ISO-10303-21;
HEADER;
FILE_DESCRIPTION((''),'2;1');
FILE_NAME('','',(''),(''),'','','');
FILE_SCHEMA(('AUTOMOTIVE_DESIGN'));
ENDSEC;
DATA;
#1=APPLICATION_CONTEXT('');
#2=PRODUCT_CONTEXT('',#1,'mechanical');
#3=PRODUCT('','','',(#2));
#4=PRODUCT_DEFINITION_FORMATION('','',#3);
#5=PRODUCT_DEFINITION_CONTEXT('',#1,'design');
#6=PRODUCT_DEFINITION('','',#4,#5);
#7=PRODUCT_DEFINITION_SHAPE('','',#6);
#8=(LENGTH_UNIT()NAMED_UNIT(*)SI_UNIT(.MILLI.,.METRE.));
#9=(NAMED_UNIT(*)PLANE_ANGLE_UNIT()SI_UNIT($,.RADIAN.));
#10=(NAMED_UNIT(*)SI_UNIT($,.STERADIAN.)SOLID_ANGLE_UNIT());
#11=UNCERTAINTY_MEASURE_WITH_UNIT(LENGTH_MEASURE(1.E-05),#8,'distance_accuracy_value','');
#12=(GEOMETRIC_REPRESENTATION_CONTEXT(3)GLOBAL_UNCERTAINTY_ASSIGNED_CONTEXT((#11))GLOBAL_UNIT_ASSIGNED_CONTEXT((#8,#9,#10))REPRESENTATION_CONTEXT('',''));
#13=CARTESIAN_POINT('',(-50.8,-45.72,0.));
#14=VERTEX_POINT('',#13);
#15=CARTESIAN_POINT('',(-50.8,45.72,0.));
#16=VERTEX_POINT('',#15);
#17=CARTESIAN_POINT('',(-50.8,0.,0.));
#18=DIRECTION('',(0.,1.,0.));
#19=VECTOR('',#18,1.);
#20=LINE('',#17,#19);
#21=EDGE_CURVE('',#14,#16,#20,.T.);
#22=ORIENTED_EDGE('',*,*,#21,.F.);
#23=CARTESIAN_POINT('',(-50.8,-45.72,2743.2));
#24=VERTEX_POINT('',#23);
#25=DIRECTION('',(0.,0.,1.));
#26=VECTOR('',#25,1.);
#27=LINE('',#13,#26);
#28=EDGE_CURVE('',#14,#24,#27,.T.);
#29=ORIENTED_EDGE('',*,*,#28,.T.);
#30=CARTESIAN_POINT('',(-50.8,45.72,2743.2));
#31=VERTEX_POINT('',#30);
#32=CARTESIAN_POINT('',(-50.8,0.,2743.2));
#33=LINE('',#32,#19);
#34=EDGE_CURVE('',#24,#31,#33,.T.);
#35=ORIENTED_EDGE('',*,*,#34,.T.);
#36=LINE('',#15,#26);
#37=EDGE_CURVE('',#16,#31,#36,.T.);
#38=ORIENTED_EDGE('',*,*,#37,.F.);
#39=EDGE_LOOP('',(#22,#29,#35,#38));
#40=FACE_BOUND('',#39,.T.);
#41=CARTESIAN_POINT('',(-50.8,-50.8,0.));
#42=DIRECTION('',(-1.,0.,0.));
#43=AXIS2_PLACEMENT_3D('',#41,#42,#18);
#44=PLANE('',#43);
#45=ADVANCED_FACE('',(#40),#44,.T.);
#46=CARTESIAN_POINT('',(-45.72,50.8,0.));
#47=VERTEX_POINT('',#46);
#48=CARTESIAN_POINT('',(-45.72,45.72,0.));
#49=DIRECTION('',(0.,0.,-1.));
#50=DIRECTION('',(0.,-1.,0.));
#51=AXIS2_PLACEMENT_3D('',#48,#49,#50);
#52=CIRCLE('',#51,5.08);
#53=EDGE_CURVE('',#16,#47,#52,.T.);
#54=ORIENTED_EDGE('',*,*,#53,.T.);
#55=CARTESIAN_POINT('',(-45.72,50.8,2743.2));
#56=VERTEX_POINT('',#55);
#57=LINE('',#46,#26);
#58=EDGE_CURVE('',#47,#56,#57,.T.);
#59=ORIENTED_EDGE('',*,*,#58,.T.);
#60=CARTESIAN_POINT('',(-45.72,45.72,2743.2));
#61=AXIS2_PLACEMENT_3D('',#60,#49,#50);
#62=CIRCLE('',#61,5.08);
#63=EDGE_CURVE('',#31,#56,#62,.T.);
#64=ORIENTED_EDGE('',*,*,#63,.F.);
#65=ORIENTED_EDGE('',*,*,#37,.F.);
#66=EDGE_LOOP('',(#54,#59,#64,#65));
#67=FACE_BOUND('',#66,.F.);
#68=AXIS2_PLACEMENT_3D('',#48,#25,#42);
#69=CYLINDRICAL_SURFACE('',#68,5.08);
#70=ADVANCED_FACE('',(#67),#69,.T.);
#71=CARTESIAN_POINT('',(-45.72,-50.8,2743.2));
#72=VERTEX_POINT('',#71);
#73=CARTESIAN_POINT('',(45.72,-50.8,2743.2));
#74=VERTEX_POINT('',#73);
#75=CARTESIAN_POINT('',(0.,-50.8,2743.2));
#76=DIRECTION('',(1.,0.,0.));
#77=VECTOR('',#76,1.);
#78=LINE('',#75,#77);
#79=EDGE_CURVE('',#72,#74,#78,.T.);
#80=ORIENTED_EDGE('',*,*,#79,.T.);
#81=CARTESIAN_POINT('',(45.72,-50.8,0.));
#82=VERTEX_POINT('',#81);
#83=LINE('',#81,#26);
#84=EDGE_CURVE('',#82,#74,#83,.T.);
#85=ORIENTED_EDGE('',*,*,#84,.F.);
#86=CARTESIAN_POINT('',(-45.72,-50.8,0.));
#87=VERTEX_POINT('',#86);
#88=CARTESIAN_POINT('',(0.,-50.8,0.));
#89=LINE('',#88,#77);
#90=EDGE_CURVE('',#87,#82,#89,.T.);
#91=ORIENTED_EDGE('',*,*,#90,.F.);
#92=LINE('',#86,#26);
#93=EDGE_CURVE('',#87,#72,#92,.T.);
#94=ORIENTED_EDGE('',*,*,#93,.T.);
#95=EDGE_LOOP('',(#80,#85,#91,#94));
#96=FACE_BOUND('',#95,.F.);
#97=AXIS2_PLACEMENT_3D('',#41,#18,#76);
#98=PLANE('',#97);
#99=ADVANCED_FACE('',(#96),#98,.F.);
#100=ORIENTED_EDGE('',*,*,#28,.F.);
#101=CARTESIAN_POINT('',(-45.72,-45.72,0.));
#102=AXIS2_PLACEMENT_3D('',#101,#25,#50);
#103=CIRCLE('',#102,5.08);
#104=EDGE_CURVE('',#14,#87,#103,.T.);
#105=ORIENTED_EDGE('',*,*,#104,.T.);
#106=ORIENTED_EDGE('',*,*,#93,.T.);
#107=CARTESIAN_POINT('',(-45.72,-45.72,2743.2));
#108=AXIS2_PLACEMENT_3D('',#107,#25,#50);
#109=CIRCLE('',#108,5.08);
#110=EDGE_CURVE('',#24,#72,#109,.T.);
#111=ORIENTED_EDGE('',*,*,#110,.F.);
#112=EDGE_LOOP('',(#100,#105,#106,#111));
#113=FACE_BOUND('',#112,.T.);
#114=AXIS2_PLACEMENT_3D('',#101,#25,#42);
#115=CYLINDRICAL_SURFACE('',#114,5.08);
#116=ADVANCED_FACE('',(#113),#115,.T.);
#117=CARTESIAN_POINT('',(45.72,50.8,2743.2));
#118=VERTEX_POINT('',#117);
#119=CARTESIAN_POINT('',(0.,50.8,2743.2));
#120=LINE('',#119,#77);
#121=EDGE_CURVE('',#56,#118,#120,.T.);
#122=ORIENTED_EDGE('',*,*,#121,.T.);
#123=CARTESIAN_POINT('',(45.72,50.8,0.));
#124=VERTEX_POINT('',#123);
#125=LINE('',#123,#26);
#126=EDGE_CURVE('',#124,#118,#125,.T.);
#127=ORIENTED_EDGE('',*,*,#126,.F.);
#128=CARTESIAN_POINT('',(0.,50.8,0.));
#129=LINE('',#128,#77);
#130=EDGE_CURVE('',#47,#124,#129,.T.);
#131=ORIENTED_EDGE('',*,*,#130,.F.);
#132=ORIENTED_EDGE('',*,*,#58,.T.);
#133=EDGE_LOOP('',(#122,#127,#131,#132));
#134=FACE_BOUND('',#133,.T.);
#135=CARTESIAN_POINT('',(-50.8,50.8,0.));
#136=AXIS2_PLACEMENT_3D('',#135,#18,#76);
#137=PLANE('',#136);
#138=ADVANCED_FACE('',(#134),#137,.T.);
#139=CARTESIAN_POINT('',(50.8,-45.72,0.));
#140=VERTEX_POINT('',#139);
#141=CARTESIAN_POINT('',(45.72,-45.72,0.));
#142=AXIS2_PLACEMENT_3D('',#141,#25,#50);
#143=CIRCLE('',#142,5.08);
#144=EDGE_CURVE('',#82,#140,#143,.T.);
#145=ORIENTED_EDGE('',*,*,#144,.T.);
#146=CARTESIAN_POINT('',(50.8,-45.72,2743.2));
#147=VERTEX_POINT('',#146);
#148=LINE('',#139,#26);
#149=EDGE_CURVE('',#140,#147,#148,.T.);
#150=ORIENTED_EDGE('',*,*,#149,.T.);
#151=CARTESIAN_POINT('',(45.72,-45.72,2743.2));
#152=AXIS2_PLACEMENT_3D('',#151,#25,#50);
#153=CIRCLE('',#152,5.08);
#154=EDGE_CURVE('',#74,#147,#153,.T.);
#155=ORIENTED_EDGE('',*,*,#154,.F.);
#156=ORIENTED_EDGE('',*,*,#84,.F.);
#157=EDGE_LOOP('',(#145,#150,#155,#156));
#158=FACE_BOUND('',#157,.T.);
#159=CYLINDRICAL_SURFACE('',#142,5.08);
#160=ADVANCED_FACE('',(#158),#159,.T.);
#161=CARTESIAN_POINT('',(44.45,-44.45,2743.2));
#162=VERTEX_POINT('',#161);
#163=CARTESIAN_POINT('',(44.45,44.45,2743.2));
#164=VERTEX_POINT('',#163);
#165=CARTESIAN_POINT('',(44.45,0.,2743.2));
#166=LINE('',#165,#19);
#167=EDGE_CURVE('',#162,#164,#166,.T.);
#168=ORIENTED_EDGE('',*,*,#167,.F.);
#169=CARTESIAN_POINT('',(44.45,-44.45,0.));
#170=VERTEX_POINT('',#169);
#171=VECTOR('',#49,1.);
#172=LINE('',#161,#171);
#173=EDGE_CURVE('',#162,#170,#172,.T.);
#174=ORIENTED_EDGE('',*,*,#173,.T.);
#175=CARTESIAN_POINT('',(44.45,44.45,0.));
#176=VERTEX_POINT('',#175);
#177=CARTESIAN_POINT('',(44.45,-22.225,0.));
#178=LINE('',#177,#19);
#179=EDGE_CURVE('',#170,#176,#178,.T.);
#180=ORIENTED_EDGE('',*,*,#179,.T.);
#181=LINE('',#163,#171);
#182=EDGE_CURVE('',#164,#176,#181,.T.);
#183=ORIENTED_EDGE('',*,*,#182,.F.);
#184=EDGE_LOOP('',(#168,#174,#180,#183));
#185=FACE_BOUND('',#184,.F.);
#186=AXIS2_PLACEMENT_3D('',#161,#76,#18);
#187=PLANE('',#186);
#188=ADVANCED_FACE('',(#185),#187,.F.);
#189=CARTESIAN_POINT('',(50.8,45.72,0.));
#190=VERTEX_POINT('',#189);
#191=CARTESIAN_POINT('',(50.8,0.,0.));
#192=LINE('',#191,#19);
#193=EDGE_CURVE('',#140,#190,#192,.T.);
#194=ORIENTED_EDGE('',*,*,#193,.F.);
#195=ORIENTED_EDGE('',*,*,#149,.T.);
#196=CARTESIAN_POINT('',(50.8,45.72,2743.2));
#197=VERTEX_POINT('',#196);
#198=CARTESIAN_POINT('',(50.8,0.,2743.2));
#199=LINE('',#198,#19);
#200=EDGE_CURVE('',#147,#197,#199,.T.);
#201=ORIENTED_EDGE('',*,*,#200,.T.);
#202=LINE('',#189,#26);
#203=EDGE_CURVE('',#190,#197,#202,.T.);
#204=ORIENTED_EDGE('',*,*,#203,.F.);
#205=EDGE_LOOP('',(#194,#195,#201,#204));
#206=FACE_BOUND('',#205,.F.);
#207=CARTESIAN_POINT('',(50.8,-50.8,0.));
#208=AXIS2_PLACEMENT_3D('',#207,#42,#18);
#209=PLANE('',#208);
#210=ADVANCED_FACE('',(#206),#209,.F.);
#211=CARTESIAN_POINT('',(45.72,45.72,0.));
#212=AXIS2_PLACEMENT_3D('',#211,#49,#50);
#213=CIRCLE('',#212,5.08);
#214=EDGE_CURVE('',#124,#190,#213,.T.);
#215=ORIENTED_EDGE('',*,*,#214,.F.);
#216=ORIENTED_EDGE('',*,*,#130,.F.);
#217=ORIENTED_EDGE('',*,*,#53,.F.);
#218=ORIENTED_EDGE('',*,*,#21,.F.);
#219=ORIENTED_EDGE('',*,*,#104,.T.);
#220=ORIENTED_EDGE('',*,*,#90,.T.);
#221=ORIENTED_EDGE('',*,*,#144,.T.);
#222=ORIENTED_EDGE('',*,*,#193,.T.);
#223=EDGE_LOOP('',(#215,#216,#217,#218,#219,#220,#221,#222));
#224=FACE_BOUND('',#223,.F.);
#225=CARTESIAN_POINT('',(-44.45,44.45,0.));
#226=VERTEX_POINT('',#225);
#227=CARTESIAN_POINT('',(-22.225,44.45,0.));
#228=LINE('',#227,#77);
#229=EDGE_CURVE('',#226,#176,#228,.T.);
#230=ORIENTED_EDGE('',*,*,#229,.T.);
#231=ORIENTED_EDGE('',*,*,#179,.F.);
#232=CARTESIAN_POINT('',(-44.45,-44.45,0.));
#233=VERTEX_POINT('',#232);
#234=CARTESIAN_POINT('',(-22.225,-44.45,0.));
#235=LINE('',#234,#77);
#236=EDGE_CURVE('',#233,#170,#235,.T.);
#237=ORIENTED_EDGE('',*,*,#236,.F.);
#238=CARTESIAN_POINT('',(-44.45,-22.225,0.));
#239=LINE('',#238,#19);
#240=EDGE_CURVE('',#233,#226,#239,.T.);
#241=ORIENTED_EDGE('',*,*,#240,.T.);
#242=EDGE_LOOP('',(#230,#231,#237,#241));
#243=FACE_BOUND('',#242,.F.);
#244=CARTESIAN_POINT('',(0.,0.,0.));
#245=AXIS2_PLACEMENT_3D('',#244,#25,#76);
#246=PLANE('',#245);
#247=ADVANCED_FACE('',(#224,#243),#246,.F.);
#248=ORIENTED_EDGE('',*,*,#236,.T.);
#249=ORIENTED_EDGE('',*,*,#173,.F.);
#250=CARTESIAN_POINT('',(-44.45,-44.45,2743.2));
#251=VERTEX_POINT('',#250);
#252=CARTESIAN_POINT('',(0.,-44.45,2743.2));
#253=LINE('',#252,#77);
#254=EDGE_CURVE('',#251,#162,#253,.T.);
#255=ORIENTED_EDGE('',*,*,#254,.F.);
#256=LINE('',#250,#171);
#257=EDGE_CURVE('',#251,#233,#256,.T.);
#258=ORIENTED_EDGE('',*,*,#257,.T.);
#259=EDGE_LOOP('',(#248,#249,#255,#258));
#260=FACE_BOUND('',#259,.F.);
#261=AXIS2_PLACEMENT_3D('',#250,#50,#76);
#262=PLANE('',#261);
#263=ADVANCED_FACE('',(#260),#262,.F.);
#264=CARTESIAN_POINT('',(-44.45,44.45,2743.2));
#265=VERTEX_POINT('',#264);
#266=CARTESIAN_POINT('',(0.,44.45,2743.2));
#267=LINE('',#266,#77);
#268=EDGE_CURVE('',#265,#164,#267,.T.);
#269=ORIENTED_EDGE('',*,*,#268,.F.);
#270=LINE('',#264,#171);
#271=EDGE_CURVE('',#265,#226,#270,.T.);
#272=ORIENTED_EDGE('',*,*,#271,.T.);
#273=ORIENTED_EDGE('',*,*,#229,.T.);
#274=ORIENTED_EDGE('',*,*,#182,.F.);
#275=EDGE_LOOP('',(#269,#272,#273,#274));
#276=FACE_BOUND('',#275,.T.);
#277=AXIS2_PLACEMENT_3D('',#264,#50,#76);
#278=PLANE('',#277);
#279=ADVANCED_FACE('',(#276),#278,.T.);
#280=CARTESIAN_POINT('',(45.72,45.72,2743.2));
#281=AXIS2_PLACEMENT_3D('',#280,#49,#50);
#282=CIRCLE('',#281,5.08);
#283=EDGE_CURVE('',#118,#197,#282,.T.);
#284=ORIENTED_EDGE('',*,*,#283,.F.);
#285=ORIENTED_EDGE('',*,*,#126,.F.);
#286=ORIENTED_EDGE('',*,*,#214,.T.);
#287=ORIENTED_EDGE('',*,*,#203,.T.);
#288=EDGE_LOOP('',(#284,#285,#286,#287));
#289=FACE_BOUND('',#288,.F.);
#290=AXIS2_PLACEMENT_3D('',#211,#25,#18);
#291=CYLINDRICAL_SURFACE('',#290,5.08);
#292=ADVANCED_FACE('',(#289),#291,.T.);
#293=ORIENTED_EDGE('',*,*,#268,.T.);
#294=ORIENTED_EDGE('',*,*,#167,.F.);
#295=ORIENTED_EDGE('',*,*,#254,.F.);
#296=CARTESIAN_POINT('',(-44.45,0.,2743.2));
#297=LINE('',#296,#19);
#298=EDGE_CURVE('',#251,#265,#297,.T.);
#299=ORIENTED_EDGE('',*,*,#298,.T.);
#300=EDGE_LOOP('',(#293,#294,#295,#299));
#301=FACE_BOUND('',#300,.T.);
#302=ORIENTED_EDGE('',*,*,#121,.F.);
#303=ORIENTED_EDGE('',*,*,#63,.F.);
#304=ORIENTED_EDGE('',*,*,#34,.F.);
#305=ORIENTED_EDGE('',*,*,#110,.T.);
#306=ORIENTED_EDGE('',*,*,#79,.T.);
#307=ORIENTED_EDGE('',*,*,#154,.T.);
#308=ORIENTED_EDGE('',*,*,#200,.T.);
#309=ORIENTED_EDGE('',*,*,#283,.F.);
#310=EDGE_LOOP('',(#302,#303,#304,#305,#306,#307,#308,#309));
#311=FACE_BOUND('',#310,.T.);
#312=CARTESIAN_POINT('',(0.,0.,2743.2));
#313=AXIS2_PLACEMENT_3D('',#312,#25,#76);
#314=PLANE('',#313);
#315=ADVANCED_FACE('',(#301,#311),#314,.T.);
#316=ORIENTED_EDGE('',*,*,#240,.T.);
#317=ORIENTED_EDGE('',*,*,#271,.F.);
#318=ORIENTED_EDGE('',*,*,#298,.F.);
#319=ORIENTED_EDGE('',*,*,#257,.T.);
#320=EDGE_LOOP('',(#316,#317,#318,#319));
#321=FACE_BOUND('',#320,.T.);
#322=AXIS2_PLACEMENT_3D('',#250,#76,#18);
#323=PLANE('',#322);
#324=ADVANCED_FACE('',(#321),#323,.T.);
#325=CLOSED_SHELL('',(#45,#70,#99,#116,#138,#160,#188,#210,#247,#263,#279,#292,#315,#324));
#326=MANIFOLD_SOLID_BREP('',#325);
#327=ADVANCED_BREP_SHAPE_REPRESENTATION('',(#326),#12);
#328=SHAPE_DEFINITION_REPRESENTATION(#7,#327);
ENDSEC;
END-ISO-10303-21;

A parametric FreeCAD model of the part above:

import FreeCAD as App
import Part
import Sketcher

V = App.Vector
Q = App.Units.Quantity


def edges_at(feature, points):
    """Names of the edges that pass closest to the given points."""
    edges = feature.Shape.Edges
    near = lambda p: min(range(len(edges)), key=lambda i: edges[i].distToShape(Part.Vertex(*p))[0])
    return sorted({f"Edge{near(p) + 1}" for p in points})

doc = App.newDocument("Part")
body = doc.addObject("PartDesign::Body", "Body")

sketch1 = body.newObject("Sketcher::SketchObject", "Sketch")
sketch1.AttachmentSupport = (doc.getObject("XY_Plane"), [""])
sketch1.MapMode = "FlatFace"
sketch1.addGeometry([
    Part.LineSegment(V(-50.8, 50.8, 0), V(-50.8, -50.8, 0)),
    Part.LineSegment(V(-50.8, -50.8, 0), V(50.8, -50.8, 0)),
    Part.LineSegment(V(50.8, -50.8, 0), V(50.8, 50.8, 0)),
    Part.LineSegment(V(50.8, 50.8, 0), V(-50.8, 50.8, 0)),
], False)
sketch1.addConstraint([
    Sketcher.Constraint("Coincident", 0, 2, 1, 1),
    Sketcher.Constraint("Coincident", 1, 2, 2, 1),
    Sketcher.Constraint("Coincident", 2, 2, 3, 1),
    Sketcher.Constraint("Coincident", 3, 2, 0, 1),
    Sketcher.Constraint("Vertical", 0),
    Sketcher.Constraint("Horizontal", 1),
    Sketcher.Constraint("Vertical", 2),
    Sketcher.Constraint("Horizontal", 3),
    Sketcher.Constraint("Symmetric", 0, 2, 2, 2, -1, 1),
    Sketcher.Constraint("Equal", 3, 0),
    Sketcher.Constraint("DistanceX", 1, 1, 1, 2, Q("4 in")),
])
pad1 = body.newObject("PartDesign::Pad", "Pad")
pad1.Profile = sketch1
pad1.Length = Q("108 in")

sketch2 = body.newObject("Sketcher::SketchObject", "Sketch001")
sketch2.AttachmentSupport = (doc.getObject("XY_Plane"), [""])
sketch2.MapMode = "FlatFace"
sketch2.AttachmentOffset = App.Placement(V(0, 0, 108 * 25.4), App.Rotation())
sketch2.addGeometry([
    Part.LineSegment(V(-44.45, 44.45, 0), V(-44.45, -44.45, 0)),
    Part.LineSegment(V(-44.45, -44.45, 0), V(44.45, -44.45, 0)),
    Part.LineSegment(V(44.45, -44.45, 0), V(44.45, 44.45, 0)),
    Part.LineSegment(V(44.45, 44.45, 0), V(-44.45, 44.45, 0)),
], False)
sketch2.addConstraint([
    Sketcher.Constraint("Coincident", 0, 2, 1, 1),
    Sketcher.Constraint("Coincident", 1, 2, 2, 1),
    Sketcher.Constraint("Coincident", 2, 2, 3, 1),
    Sketcher.Constraint("Coincident", 3, 2, 0, 1),
    Sketcher.Constraint("Vertical", 0),
    Sketcher.Constraint("Horizontal", 1),
    Sketcher.Constraint("Vertical", 2),
    Sketcher.Constraint("Horizontal", 3),
    Sketcher.Constraint("Symmetric", 0, 2, 2, 2, -1, 1),
    Sketcher.Constraint("Equal", 3, 0),
    Sketcher.Constraint("DistanceX", 1, 1, 1, 2, Q("3.5 in")),
])
pocket1 = body.newObject("PartDesign::Pocket", "Pocket")
pocket1.Profile = sketch2
pocket1.Type = "ThroughAll"
doc.recompute()

fillet = body.newObject("PartDesign::Fillet", "Fillet")
fillet.Base = (pocket1, edges_at(pocket1, [
    (50.8, -50.8, 1371.6),
    (50.8, 50.8, 1371.6),
    (-50.8, -50.8, 1371.6),
    (-50.8, 50.8, 1371.6),
]))
fillet.Radius = Q("0.2 in")

doc.recompute()
